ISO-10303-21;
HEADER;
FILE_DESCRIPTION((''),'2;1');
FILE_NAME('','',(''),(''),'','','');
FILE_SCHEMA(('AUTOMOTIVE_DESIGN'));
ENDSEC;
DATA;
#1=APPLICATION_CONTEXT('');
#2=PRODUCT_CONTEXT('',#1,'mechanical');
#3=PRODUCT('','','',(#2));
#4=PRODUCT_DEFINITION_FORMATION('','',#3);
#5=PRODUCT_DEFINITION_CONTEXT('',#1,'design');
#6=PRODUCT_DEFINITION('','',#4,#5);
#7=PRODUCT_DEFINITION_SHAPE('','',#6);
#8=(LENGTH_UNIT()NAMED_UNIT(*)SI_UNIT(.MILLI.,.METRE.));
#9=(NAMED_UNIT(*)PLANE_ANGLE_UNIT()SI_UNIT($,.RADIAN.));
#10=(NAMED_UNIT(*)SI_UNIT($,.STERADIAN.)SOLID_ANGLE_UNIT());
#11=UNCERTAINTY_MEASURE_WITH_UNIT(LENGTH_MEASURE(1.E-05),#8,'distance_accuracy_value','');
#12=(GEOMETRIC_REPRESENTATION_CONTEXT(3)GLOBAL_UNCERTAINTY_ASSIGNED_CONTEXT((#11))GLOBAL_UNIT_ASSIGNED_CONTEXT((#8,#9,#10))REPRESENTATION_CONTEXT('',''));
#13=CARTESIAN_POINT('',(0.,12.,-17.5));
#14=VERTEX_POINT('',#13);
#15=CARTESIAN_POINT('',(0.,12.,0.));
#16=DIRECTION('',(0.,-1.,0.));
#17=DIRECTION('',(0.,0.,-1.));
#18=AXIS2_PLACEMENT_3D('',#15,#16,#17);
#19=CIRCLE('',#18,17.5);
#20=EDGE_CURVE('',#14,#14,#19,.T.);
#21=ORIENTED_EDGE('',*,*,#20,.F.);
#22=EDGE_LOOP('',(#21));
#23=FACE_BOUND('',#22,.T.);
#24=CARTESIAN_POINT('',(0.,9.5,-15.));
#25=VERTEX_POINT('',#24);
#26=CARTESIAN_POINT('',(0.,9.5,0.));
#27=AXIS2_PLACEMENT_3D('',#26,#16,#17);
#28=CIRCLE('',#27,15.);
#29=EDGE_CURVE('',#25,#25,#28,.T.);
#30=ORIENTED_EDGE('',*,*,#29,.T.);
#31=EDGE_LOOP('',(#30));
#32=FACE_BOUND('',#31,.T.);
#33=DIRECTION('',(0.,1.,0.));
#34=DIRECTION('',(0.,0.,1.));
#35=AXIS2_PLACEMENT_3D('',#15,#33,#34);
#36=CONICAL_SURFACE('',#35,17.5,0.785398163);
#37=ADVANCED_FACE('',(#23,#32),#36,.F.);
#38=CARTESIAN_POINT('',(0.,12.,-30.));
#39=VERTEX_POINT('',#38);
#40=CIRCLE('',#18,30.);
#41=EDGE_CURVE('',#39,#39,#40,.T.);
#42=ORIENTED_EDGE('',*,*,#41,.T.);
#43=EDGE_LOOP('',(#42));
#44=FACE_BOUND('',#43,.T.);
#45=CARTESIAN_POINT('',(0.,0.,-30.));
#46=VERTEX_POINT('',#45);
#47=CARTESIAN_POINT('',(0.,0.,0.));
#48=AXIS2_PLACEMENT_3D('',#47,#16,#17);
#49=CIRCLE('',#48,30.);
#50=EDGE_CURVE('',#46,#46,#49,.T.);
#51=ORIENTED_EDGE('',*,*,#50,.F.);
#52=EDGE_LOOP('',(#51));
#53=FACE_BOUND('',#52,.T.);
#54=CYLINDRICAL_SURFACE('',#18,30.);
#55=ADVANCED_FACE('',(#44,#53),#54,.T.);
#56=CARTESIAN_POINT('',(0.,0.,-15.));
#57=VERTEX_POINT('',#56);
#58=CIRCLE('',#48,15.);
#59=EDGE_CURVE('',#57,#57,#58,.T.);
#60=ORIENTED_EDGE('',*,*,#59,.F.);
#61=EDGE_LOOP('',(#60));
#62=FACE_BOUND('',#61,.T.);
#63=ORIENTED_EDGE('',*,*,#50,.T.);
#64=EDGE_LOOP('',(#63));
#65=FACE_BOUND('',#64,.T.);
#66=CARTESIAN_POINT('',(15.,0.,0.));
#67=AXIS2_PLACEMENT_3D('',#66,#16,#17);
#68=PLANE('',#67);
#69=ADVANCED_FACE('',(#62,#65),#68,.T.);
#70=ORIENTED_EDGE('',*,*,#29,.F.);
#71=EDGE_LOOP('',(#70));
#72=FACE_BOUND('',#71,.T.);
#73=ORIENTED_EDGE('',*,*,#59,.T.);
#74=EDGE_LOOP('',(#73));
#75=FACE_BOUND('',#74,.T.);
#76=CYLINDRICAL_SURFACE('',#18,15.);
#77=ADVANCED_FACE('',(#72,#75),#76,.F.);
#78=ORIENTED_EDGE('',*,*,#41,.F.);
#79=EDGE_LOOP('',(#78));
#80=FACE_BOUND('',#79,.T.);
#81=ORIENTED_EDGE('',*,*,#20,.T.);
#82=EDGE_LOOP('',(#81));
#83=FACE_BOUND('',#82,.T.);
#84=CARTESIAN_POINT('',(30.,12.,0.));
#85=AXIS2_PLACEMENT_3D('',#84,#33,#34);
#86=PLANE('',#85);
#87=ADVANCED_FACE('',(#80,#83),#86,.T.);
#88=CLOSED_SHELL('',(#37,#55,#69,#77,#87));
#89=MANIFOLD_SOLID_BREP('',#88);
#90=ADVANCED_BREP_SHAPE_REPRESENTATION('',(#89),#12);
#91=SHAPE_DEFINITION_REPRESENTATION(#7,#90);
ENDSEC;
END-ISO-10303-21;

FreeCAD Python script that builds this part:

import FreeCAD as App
import Part
import Sketcher

V = App.Vector
Q = App.Units.Quantity

doc = App.newDocument("Part")
body = doc.addObject("PartDesign::Body", "Body")

sketch1 = doc.addObject("Sketcher::SketchObject", "Sketch")
body.addObject(sketch1)
sketch1.AttachmentSupport = (doc.XY_Plane, [""])
sketch1.MapMode = "FlatFace"
sketch1.addGeometry(Part.LineSegment(V(30, 12, 0), V(17.5, 12, 0)), False)
sketch1.addGeometry(Part.LineSegment(V(17.5, 12, 0), V(15, 9.5, 0)), False)
sketch1.addGeometry(Part.LineSegment(V(15, 9.5, 0), V(15, 0, 0)), False)
sketch1.addGeometry(Part.LineSegment(V(15, 0, 0), V(30, 0, 0)), False)
sketch1.addGeometry(Part.LineSegment(V(30, 0, 0), V(30, 12, 0)), False)
sketch1.addConstraint(Sketcher.Constraint("Coincident", 0, 2, 1, 1))
sketch1.addConstraint(Sketcher.Constraint("Coincident", 1, 2, 2, 1))
sketch1.addConstraint(Sketcher.Constraint("Coincident", 2, 2, 3, 1))
sketch1.addConstraint(Sketcher.Constraint("Coincident", 3, 2, 4, 1))
sketch1.addConstraint(Sketcher.Constraint("Coincident", 4, 2, 0, 1))
sketch1.addConstraint(Sketcher.Constraint("Horizontal", 0))
sketch1.addConstraint(Sketcher.Constraint("Vertical", 2))
sketch1.addConstraint(Sketcher.Constraint("Horizontal", 3))
sketch1.addConstraint(Sketcher.Constraint("Vertical", 4))
sketch1.addConstraint(Sketcher.Constraint("PointOnObject", 2, 2, -1))
sketch1.addConstraint(Sketcher.Constraint("DistanceX", 3, 1, 3, 2, 15.0))
sketch1.addConstraint(Sketcher.Constraint("DistanceY", 4, 1, 4, 2, 12.0))
sketch1.addConstraint(Sketcher.Constraint("Angle", 1, Q("-135 deg")))
sketch1.addConstraint(Sketcher.Constraint("DistanceX", 0, 2, 0, 1, 12.5))
sketch1.addConstraint(Sketcher.Constraint("DistanceX", -1, 1, 1, 2, 15.0))
revolution = doc.addObject("PartDesign::Revolution", "Revolution")
body.addObject(revolution)
revolution.Profile = sketch1
revolution.ReferenceAxis = (sketch1, ["V_Axis"])
revolution.Angle = 360

doc.recompute()
